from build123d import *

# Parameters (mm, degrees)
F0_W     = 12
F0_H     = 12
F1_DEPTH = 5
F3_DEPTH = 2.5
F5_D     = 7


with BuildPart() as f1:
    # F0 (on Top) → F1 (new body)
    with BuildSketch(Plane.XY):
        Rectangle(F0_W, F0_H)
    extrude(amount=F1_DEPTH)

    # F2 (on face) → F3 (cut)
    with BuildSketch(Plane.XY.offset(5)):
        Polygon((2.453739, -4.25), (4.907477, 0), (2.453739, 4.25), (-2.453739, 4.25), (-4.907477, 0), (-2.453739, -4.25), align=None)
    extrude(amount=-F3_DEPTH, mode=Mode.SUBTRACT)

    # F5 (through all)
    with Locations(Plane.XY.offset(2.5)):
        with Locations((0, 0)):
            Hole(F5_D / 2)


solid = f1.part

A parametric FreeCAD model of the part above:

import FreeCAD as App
import Part
import Sketcher
Q = App.Units.Quantity


def add_polygon(sketch, points):
    """Adds a closed chain of lines whose ends are joined by coincident constraints."""
    first, n = sketch.GeometryCount, len(points)
    for a, b in zip(points, points[1:] + points[:1]):
        sketch.addGeometry(Part.LineSegment(App.Vector(*a, 0), App.Vector(*b, 0)), False)
    for i in range(n):
        sketch.addConstraint(Sketcher.Constraint("Coincident", first + i, 2, first + (i + 1) % n, 1))

doc = App.newDocument("Part")
body = doc.addObject("PartDesign::Body", "Body")

# Sketch on XY plane
sketch1 = body.newObject("Sketcher::SketchObject", "Sketch")
sketch1.AttachmentSupport = (doc.getObject("XY_Plane"), [""])
sketch1.MapMode = "FlatFace"
add_polygon(sketch1, [(-6, 6), (-6, -6), (6, -6), (6, 6)])  # lines 0-3
sketch1.addConstraint(Sketcher.Constraint("Vertical", 0))
sketch1.addConstraint(Sketcher.Constraint("Horizontal", 1))
sketch1.addConstraint(Sketcher.Constraint("Vertical", 2))
sketch1.addConstraint(Sketcher.Constraint("Horizontal", 3))
sketch1.addConstraint(Sketcher.Constraint("Symmetric", 0, 2, 2, 2, -1, 1))
sketch1.addConstraint(Sketcher.Constraint("Equal", 3, 0))
sketch1.addConstraint(Sketcher.Constraint("DistanceX", 1, 1, 1, 2, Q("12 mm")))
pad1 = body.newObject("PartDesign::Pad", "Pad")
pad1.Profile = sketch1
pad1.Length = 5

# Sketch on XY plane
sketch2 = body.newObject("Sketcher::SketchObject", "Sketch001")
sketch2.AttachmentSupport = (doc.getObject("XY_Plane"), [""])
sketch2.MapMode = "FlatFace"
sketch2.AttachmentOffset = App.Placement(App.Vector(0, 0, 5), App.Rotation())
add_polygon(sketch2, [(2.5, -4.2), (4.9, 0), (2.5, 4.2), (-2.5, 4.2), (-4.9, 0), (-2.5, -4.2)])  # lines 0-5
sketch2.addConstraint(Sketcher.Constraint("Horizontal", 2))
sketch2.addConstraint(Sketcher.Constraint("Horizontal", 5))
sketch2.addConstraint(Sketcher.Constraint("Symmetric", 0, 2, 3, 2, -1, 1))
sketch2.addConstraint(Sketcher.Constraint("Symmetric", 1, 2, 4, 2, -1, 1))
sketch2.addConstraint(Sketcher.Constraint("PointOnObject", 0, 2, -1))
sketch2.addConstraint(Sketcher.Constraint("Parallel", 0, 3))
sketch2.addConstraint(Sketcher.Constraint("Vertical", 2, 2, 4, 2))
sketch2.addConstraint(Sketcher.Constraint("Angle", 0, Q("60.000007 deg")))
sketch2.addConstraint(Sketcher.Constraint("DistanceY", 4, 2, 2, 2, Q("8.5 mm")))
sketch2.addConstraint(Sketcher.Constraint("DistanceX", 2, 2, 2, 1, Q("4.907478 mm")))
pocket1 = body.newObject("PartDesign::Pocket", "Pocket")
pocket1.Profile = sketch2
pocket1.Length = 2.5

# Sketch on XY plane
sketch3 = body.newObject("Sketcher::SketchObject", "Sketch002")
sketch3.AttachmentSupport = (doc.getObject("XY_Plane"), [""])
sketch3.MapMode = "FlatFace"
sketch3.AttachmentOffset = App.Placement(App.Vector(0, 0, 2.5), App.Rotation())
sketch3.addGeometry(Part.Circle(App.Vector(0, 0, 0), App.Vector(0, 0, 1), 3.5), False)
sketch3.addConstraint(Sketcher.Constraint("Coincident", 0, 3, -1, 1))
sketch3.addConstraint(Sketcher.Constraint("Diameter", 0, Q("7 mm")))
doc.recompute()
hole = body.newObject("PartDesign::Hole", "Hole")
hole.Profile = sketch3
hole.ThreadType = "None"
hole.Diameter = 7
hole.DepthType = "ThroughAll"

doc.recompute()
